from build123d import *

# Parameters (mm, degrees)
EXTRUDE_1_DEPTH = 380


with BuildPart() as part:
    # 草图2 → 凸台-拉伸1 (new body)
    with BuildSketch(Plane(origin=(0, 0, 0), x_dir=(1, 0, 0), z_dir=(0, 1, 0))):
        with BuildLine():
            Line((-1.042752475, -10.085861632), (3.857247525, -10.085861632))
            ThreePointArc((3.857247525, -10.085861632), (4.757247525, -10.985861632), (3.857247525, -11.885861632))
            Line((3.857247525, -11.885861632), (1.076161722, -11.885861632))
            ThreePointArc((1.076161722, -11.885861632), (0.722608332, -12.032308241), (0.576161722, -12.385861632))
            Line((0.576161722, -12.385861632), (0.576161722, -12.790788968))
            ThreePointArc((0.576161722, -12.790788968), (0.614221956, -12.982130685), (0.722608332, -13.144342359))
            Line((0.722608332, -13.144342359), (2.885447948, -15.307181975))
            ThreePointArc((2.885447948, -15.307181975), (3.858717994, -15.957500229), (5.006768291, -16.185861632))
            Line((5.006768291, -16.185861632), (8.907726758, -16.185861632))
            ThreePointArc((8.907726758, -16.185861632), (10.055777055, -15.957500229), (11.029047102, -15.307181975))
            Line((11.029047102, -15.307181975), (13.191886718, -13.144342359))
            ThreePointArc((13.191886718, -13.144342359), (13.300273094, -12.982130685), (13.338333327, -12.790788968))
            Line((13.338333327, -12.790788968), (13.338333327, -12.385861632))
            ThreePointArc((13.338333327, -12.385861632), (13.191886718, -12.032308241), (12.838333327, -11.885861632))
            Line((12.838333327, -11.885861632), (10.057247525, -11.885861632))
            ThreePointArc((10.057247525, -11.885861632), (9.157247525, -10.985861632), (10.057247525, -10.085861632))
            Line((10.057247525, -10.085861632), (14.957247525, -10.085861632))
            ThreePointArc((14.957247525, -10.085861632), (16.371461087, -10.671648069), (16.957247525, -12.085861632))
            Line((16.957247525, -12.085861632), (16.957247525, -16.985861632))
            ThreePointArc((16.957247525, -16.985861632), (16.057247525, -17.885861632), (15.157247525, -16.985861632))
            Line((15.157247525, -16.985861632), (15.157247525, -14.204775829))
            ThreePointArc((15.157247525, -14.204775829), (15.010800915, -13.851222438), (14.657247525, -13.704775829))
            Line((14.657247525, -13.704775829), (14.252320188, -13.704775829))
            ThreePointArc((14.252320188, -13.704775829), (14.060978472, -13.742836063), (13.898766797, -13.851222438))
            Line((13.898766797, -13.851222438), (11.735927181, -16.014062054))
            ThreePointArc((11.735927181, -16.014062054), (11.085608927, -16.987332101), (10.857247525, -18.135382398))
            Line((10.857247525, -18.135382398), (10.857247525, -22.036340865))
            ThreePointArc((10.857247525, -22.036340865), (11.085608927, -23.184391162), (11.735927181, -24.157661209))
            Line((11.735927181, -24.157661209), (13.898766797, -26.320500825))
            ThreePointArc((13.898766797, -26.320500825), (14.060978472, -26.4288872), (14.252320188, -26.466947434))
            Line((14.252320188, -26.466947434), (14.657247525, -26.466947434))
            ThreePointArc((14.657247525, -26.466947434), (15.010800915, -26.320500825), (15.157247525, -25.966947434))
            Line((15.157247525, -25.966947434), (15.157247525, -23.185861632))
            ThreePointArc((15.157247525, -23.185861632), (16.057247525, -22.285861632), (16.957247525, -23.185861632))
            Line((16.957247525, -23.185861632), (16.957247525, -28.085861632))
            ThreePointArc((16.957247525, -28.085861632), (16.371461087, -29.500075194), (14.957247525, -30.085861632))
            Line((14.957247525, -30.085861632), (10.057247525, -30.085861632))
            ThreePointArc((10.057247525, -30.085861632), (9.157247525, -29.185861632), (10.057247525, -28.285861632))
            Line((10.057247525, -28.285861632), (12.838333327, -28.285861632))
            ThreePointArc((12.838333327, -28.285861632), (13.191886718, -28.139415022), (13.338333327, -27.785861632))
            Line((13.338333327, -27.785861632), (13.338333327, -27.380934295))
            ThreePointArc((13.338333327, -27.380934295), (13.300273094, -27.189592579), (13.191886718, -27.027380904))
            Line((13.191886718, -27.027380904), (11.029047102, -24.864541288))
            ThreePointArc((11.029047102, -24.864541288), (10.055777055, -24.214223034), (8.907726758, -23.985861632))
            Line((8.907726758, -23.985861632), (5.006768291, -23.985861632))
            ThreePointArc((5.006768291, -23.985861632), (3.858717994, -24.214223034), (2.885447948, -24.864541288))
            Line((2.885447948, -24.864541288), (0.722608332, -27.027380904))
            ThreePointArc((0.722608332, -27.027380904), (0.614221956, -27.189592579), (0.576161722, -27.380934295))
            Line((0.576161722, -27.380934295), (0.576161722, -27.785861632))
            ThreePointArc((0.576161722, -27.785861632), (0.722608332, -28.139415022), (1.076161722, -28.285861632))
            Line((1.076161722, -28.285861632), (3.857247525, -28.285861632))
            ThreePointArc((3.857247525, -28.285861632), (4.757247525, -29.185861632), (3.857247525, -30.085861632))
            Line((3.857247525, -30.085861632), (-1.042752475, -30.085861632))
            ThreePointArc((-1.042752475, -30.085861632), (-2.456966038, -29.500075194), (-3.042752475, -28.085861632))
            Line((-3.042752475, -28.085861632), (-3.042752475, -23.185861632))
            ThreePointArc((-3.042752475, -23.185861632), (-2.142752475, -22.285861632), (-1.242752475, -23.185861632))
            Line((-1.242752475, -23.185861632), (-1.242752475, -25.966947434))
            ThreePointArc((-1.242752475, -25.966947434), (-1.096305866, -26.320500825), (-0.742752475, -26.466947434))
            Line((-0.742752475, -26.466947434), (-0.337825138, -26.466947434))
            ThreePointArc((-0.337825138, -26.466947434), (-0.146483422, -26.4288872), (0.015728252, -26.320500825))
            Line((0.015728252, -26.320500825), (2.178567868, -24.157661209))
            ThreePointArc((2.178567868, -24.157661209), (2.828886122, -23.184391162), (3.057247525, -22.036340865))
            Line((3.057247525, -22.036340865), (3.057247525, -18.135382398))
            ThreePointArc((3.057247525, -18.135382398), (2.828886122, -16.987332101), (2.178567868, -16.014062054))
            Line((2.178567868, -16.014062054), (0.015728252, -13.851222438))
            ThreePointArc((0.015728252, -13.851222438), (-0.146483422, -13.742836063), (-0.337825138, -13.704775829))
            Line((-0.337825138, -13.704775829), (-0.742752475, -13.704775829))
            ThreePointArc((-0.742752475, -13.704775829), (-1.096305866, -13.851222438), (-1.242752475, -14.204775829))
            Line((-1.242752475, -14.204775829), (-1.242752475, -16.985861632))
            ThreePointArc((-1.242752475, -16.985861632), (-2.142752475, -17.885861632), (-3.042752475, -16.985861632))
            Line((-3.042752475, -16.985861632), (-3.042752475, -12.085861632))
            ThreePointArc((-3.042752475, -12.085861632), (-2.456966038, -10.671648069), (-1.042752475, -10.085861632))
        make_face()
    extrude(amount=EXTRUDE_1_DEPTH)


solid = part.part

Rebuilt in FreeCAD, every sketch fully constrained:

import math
import FreeCAD as App
import Part
import Sketcher
from FreeCAD import Vector
Q = App.Units.Quantity

doc = App.newDocument("Part")
body = doc.addObject("PartDesign::Body", "Body")

# Sketch on XZ plane
sketch1 = doc.addObject("Sketcher::SketchObject", "Sketch")
body.addObject(sketch1)
sketch1.AttachmentSupport = (doc.XZ_Plane, [""])
sketch1.MapMode = "FlatFace"
sketch1.addGeometry([
    Part.LineSegment(Vector(3.86, 10.09, 0), Vector(-1.04, 10.09, 0)),  # 0
    Part.ArcOfCircle(Part.Circle(Vector(-1.04, 12.09, 0), Vector(0, 0, 1), 2), math.radians(180), math.radians(270)),  # 1
    Part.LineSegment(Vector(-3.04, 12.09, 0), Vector(-3.04, 16.99, 0)),  # 2
    Part.ArcOfCircle(Part.Circle(Vector(-2.14, 16.99, 0), Vector(0, 0, 1), 0.9), math.radians(0), math.radians(180)),  # 3
    Part.LineSegment(Vector(-1.24, 16.99, 0), Vector(-1.24, 14.2, 0)),  # 4
    Part.ArcOfCircle(Part.Circle(Vector(-0.74, 14.2, 0), Vector(0, 0, 1), 0.5), math.radians(180), math.radians(270)),  # 5
    Part.LineSegment(Vector(-0.74, 13.7, 0), Vector(-0.34, 13.7, 0)),  # 6
    Part.ArcOfCircle(Part.Circle(Vector(-0.34, 14.2, 0), Vector(0, 0, 1), 0.5), math.radians(-90), math.radians(-45)),  # 7
    Part.LineSegment(Vector(0.02, 13.85, 0), Vector(2.18, 16.01, 0)),  # 8
    Part.ArcOfCircle(Part.Circle(Vector(0.06, 18.14, 0), Vector(0, 0, 1), 3), math.radians(-45), math.radians(0)),  # 9
    Part.LineSegment(Vector(3.06, 18.14, 0), Vector(3.06, 22.04, 0)),  # 10
    Part.ArcOfCircle(Part.Circle(Vector(0.06, 22.04, 0), Vector(0, 0, 1), 3), math.radians(0), math.radians(45)),  # 11
    Part.LineSegment(Vector(2.18, 24.16, 0), Vector(0.02, 26.32, 0)),  # 12
    Part.ArcOfCircle(Part.Circle(Vector(-0.34, 25.97, 0), Vector(0, 0, 1), 0.5), math.radians(45), math.radians(90)),  # 13
    Part.LineSegment(Vector(-0.34, 26.47, 0), Vector(-0.74, 26.47, 0)),  # 14
    Part.ArcOfCircle(Part.Circle(Vector(-0.74, 25.97, 0), Vector(0, 0, 1), 0.5), math.radians(90), math.radians(180)),  # 15
    Part.LineSegment(Vector(-1.24, 25.97, 0), Vector(-1.24, 23.19, 0)),  # 16
    Part.ArcOfCircle(Part.Circle(Vector(-2.14, 23.19, 0), Vector(0, 0, 1), 0.9), math.radians(180), math.radians(360)),  # 17
    Part.LineSegment(Vector(-3.04, 23.19, 0), Vector(-3.04, 28.09, 0)),  # 18
    Part.ArcOfCircle(Part.Circle(Vector(-1.04, 28.09, 0), Vector(0, 0, 1), 2), math.radians(90), math.radians(180)),  # 19
    Part.LineSegment(Vector(-1.04, 30.09, 0), Vector(3.86, 30.09, 0)),  # 20
    Part.ArcOfCircle(Part.Circle(Vector(3.86, 29.19, 0), Vector(0, 0, 1), 0.9), math.radians(-90), math.radians(90)),  # 21
    Part.LineSegment(Vector(3.86, 28.29, 0), Vector(1.08, 28.29, 0)),  # 22
    Part.ArcOfCircle(Part.Circle(Vector(1.08, 27.79, 0), Vector(0, 0, 1), 0.5), math.radians(90), math.radians(180)),  # 23
    Part.LineSegment(Vector(0.58, 27.79, 0), Vector(0.58, 27.38, 0)),  # 24
    Part.ArcOfCircle(Part.Circle(Vector(1.08, 27.38, 0), Vector(0, 0, 1), 0.5), math.radians(-180), math.radians(-135)),  # 25
    Part.LineSegment(Vector(0.72, 27.03, 0), Vector(2.89, 24.86, 0)),  # 26
    Part.ArcOfCircle(Part.Circle(Vector(5.01, 26.99, 0), Vector(0, 0, 1), 3), math.radians(-135), math.radians(-90)),  # 27
    Part.LineSegment(Vector(5.01, 23.99, 0), Vector(8.91, 23.99, 0)),  # 28
    Part.ArcOfCircle(Part.Circle(Vector(8.91, 26.99, 0), Vector(0, 0, 1), 3), math.radians(-90), math.radians(-45)),  # 29
    Part.LineSegment(Vector(11.03, 24.86, 0), Vector(13.19, 27.03, 0)),  # 30
    Part.ArcOfCircle(Part.Circle(Vector(12.84, 27.38, 0), Vector(0, 0, 1), 0.5), math.radians(-45), math.radians(0)),  # 31
    Part.LineSegment(Vector(13.34, 27.38, 0), Vector(13.34, 27.79, 0)),  # 32
    Part.ArcOfCircle(Part.Circle(Vector(12.84, 27.79, 0), Vector(0, 0, 1), 0.5), math.radians(0), math.radians(90)),  # 33
    Part.LineSegment(Vector(12.84, 28.29, 0), Vector(10.06, 28.29, 0)),  # 34
    Part.ArcOfCircle(Part.Circle(Vector(10.06, 29.19, 0), Vector(0, 0, 1), 0.9), math.radians(90), math.radians(270)),  # 35
    Part.LineSegment(Vector(10.06, 30.09, 0), Vector(14.96, 30.09, 0)),  # 36
    Part.ArcOfCircle(Part.Circle(Vector(14.96, 28.09, 0), Vector(0, 0, 1), 2), math.radians(0), math.radians(90)),  # 37
    Part.LineSegment(Vector(16.96, 28.09, 0), Vector(16.96, 23.19, 0)),  # 38
    Part.ArcOfCircle(Part.Circle(Vector(16.06, 23.19, 0), Vector(0, 0, 1), 0.9), math.radians(180), math.radians(360)),  # 39
    Part.LineSegment(Vector(15.16, 23.19, 0), Vector(15.16, 25.97, 0)),  # 40
    Part.ArcOfCircle(Part.Circle(Vector(14.66, 25.97, 0), Vector(0, 0, 1), 0.5), math.radians(0), math.radians(90)),  # 41
    Part.LineSegment(Vector(14.66, 26.47, 0), Vector(14.25, 26.47, 0)),  # 42
    Part.ArcOfCircle(Part.Circle(Vector(14.25, 25.97, 0), Vector(0, 0, 1), 0.5), math.radians(90), math.radians(135)),  # 43
    Part.LineSegment(Vector(13.9, 26.32, 0), Vector(11.74, 24.16, 0)),  # 44
    Part.ArcOfCircle(Part.Circle(Vector(13.86, 22.04, 0), Vector(0, 0, 1), 3), math.radians(135), math.radians(180)),  # 45
    Part.LineSegment(Vector(10.86, 22.04, 0), Vector(10.86, 18.14, 0)),  # 46
    Part.ArcOfCircle(Part.Circle(Vector(13.86, 18.14, 0), Vector(0, 0, 1), 3), math.radians(180), math.radians(225)),  # 47
    Part.LineSegment(Vector(11.74, 16.01, 0), Vector(13.9, 13.85, 0)),  # 48
    Part.ArcOfCircle(Part.Circle(Vector(14.25, 14.2, 0), Vector(0, 0, 1), 0.5), math.radians(-135), math.radians(-90)),  # 49
    Part.LineSegment(Vector(14.25, 13.7, 0), Vector(14.66, 13.7, 0)),  # 50
    Part.ArcOfCircle(Part.Circle(Vector(14.66, 14.2, 0), Vector(0, 0, 1), 0.5), math.radians(-90), math.radians(0)),  # 51
    Part.LineSegment(Vector(15.16, 14.2, 0), Vector(15.16, 16.99, 0)),  # 52
    Part.ArcOfCircle(Part.Circle(Vector(16.06, 16.99, 0), Vector(0, 0, 1), 0.9), math.radians(0), math.radians(180)),  # 53
    Part.LineSegment(Vector(16.96, 16.99, 0), Vector(16.96, 12.09, 0)),  # 54
    Part.ArcOfCircle(Part.Circle(Vector(14.96, 12.09, 0), Vector(0, 0, 1), 2), math.radians(-90), math.radians(0)),  # 55
    Part.LineSegment(Vector(14.96, 10.09, 0), Vector(10.06, 10.09, 0)),  # 56
    Part.ArcOfCircle(Part.Circle(Vector(10.06, 10.99, 0), Vector(0, 0, 1), 0.9), math.radians(90), math.radians(270)),  # 57
    Part.LineSegment(Vector(10.06, 11.89, 0), Vector(12.84, 11.89, 0)),  # 58
    Part.ArcOfCircle(Part.Circle(Vector(12.84, 12.39, 0), Vector(0, 0, 1), 0.5), math.radians(-90), math.radians(0)),  # 59
    Part.LineSegment(Vector(13.34, 12.39, 0), Vector(13.34, 12.79, 0)),  # 60
    Part.ArcOfCircle(Part.Circle(Vector(12.84, 12.79, 0), Vector(0, 0, 1), 0.5), math.radians(0), math.radians(45)),  # 61
    Part.LineSegment(Vector(13.19, 13.14, 0), Vector(11.03, 15.31, 0)),  # 62
    Part.ArcOfCircle(Part.Circle(Vector(8.91, 13.19, 0), Vector(0, 0, 1), 3), math.radians(45), math.radians(90)),  # 63
    Part.LineSegment(Vector(8.91, 16.19, 0), Vector(5.01, 16.19, 0)),  # 64
    Part.ArcOfCircle(Part.Circle(Vector(5.01, 13.19, 0), Vector(0, 0, 1), 3), math.radians(90), math.radians(135)),  # 65
    Part.LineSegment(Vector(2.89, 15.31, 0), Vector(0.72, 13.14, 0)),  # 66
    Part.ArcOfCircle(Part.Circle(Vector(1.08, 12.79, 0), Vector(0, 0, 1), 0.5), math.radians(135), math.radians(180)),  # 67
    Part.LineSegment(Vector(0.58, 12.79, 0), Vector(0.58, 12.39, 0)),  # 68
    Part.ArcOfCircle(Part.Circle(Vector(1.08, 12.39, 0), Vector(0, 0, 1), 0.5), math.radians(180), math.radians(270)),  # 69
    Part.LineSegment(Vector(1.08, 11.89, 0), Vector(3.86, 11.89, 0)),  # 70
    Part.ArcOfCircle(Part.Circle(Vector(3.86, 10.99, 0), Vector(0, 0, 1), 0.9), math.radians(-90), math.radians(90)),  # 71
], False)
sketch1.addConstraint([
    Sketcher.Constraint("Tangent", 0, 2, 1, 2),
    Sketcher.Constraint("Tangent", 1, 1, 2, 1),
    Sketcher.Constraint("Tangent", 2, 2, 3, 2),
    Sketcher.Constraint("Tangent", 3, 1, 4, 1),
    Sketcher.Constraint("Tangent", 4, 2, 5, 1),
    Sketcher.Constraint("Tangent", 5, 2, 6, 1),
    Sketcher.Constraint("Tangent", 6, 2, 7, 1),
    Sketcher.Constraint("Tangent", 7, 2, 8, 1),
    Sketcher.Constraint("Tangent", 8, 2, 9, 1),
    Sketcher.Constraint("Tangent", 9, 2, 10, 1),
    Sketcher.Constraint("Tangent", 10, 2, 11, 1),
    Sketcher.Constraint("Tangent", 11, 2, 12, 1),
    Sketcher.Constraint("Tangent", 12, 2, 13, 1),
    Sketcher.Constraint("Tangent", 13, 2, 14, 1),
    Sketcher.Constraint("Tangent", 14, 2, 15, 1),
    Sketcher.Constraint("Tangent", 15, 2, 16, 1),
    Sketcher.Constraint("Tangent", 16, 2, 17, 2),
    Sketcher.Constraint("Tangent", 17, 1, 18, 1),
    Sketcher.Constraint("Tangent", 18, 2, 19, 2),
    Sketcher.Constraint("Tangent", 19, 1, 20, 1),
    Sketcher.Constraint("Tangent", 20, 2, 21, 2),
    Sketcher.Constraint("Tangent", 21, 1, 22, 1),
    Sketcher.Constraint("Tangent", 22, 2, 23, 1),
    Sketcher.Constraint("Tangent", 23, 2, 24, 1),
    Sketcher.Constraint("Tangent", 24, 2, 25, 1),
    Sketcher.Constraint("Tangent", 25, 2, 26, 1),
    Sketcher.Constraint("Tangent", 26, 2, 27, 1),
    Sketcher.Constraint("Tangent", 27, 2, 28, 1),
    Sketcher.Constraint("Tangent", 28, 2, 29, 1),
    Sketcher.Constraint("Tangent", 29, 2, 30, 1),
    Sketcher.Constraint("Tangent", 30, 2, 31, 1),
    Sketcher.Constraint("Tangent", 31, 2, 32, 1),
    Sketcher.Constraint("Tangent", 32, 2, 33, 1),
    Sketcher.Constraint("Tangent", 33, 2, 34, 1),
    Sketcher.Constraint("Tangent", 34, 2, 35, 2),
    Sketcher.Constraint("Tangent", 35, 1, 36, 1),
    Sketcher.Constraint("Tangent", 36, 2, 37, 2),
    Sketcher.Constraint("Tangent", 37, 1, 38, 1),
    Sketcher.Constraint("Tangent", 38, 2, 39, 2),
    Sketcher.Constraint("Tangent", 39, 1, 40, 1),
    Sketcher.Constraint("Tangent", 40, 2, 41, 1),
    Sketcher.Constraint("Tangent", 41, 2, 42, 1),
    Sketcher.Constraint("Tangent", 42, 2, 43, 1),
    Sketcher.Constraint("Tangent", 43, 2, 44, 1),
    Sketcher.Constraint("Tangent", 44, 2, 45, 1),
    Sketcher.Constraint("Tangent", 45, 2, 46, 1),
    Sketcher.Constraint("Tangent", 46, 2, 47, 1),
    Sketcher.Constraint("Tangent", 47, 2, 48, 1),
    Sketcher.Constraint("Tangent", 48, 2, 49, 1),
    Sketcher.Constraint("Tangent", 49, 2, 50, 1),
    Sketcher.Constraint("Tangent", 50, 2, 51, 1),
    Sketcher.Constraint("Tangent", 51, 2, 52, 1),
    Sketcher.Constraint("Tangent", 52, 2, 53, 2),
    Sketcher.Constraint("Tangent", 53, 1, 54, 1),
    Sketcher.Constraint("Tangent", 54, 2, 55, 2),
    Sketcher.Constraint("Tangent", 55, 1, 56, 1),
    Sketcher.Constraint("Tangent", 56, 2, 57, 2),
    Sketcher.Constraint("Tangent", 57, 1, 58, 1),
    Sketcher.Constraint("Tangent", 58, 2, 59, 1),
    Sketcher.Constraint("Tangent", 59, 2, 60, 1),
    Sketcher.Constraint("Tangent", 60, 2, 61, 1),
    Sketcher.Constraint("Tangent", 61, 2, 62, 1),
    Sketcher.Constraint("Tangent", 62, 2, 63, 1),
    Sketcher.Constraint("Tangent", 63, 2, 64, 1),
    Sketcher.Constraint("Tangent", 64, 2, 65, 1),
    Sketcher.Constraint("Tangent", 65, 2, 66, 1),
    Sketcher.Constraint("Tangent", 66, 2, 67, 1),
    Sketcher.Constraint("Tangent", 67, 2, 68, 1),
    Sketcher.Constraint("Tangent", 68, 2, 69, 1),
    Sketcher.Constraint("Tangent", 69, 2, 70, 1),
    Sketcher.Constraint("Tangent", 70, 2, 71, 2),
    Sketcher.Constraint("Tangent", 71, 1, 0, 1),
    Sketcher.Constraint("Horizontal", 0),
    Sketcher.Constraint("Vertical", 2),
    Sketcher.Constraint("Vertical", 4),
    Sketcher.Constraint("Horizontal", 6),
    Sketcher.Constraint("Vertical", 10),
    Sketcher.Constraint("Horizontal", 14),
    Sketcher.Constraint("Vertical", 16),
    Sketcher.Constraint("Vertical", 18),
    Sketcher.Constraint("Horizontal", 20),
    Sketcher.Constraint("Horizontal", 22),
    Sketcher.Constraint("Vertical", 24),
    Sketcher.Constraint("Horizontal", 28),
    Sketcher.Constraint("Vertical", 32),
    Sketcher.Constraint("Horizontal", 34),
    Sketcher.Constraint("Horizontal", 36),
    Sketcher.Constraint("Vertical", 38),
    Sketcher.Constraint("Vertical", 40),
    Sketcher.Constraint("Horizontal", 42),
    Sketcher.Constraint("Vertical", 46),
    Sketcher.Constraint("Horizontal", 50),
    Sketcher.Constraint("Vertical", 52),
    Sketcher.Constraint("Vertical", 54),
    Sketcher.Constraint("Horizontal", 56),
    Sketcher.Constraint("Horizontal", 58),
    Sketcher.Constraint("Vertical", 60),
    Sketcher.Constraint("Horizontal", 64),
    Sketcher.Constraint("Vertical", 68),
    Sketcher.Constraint("Horizontal", 70),
    Sketcher.Constraint("Equal", 5, 7),
    Sketcher.Constraint("Equal", 9, 11),
    Sketcher.Constraint("Equal", 7, 13),
    Sketcher.Constraint("Equal", 13, 15),
    Sketcher.Constraint("Equal", 3, 17),
    Sketcher.Constraint("Equal", 1, 19),
    Sketcher.Constraint("Equal", 17, 21),
    Sketcher.Constraint("Equal", 15, 23),
    Sketcher.Constraint("Equal", 23, 25),
    Sketcher.Constraint("Equal", 11, 27),
    Sketcher.Constraint("Equal", 27, 29),
    Sketcher.Constraint("Equal", 25, 31),
    Sketcher.Constraint("Equal", 31, 33),
    Sketcher.Constraint("Equal", 21, 35),
    Sketcher.Constraint("Equal", 19, 37),
    Sketcher.Constraint("Equal", 35, 39),
    Sketcher.Constraint("Equal", 33, 41),
    Sketcher.Constraint("Equal", 41, 43),
    Sketcher.Constraint("Equal", 29, 45),
    Sketcher.Constraint("Equal", 45, 47),
    Sketcher.Constraint("Equal", 43, 49),
    Sketcher.Constraint("Equal", 49, 51),
    Sketcher.Constraint("Equal", 39, 53),
    Sketcher.Constraint("Equal", 37, 55),
    Sketcher.Constraint("Equal", 53, 57),
    Sketcher.Constraint("Equal", 51, 59),
    Sketcher.Constraint("Equal", 59, 61),
    Sketcher.Constraint("Equal", 47, 63),
    Sketcher.Constraint("Equal", 63, 65),
    Sketcher.Constraint("Equal", 61, 67),
    Sketcher.Constraint("Equal", 67, 69),
    Sketcher.Constraint("Equal", 57, 71),
    Sketcher.Constraint("Perpendicular", 8, 12),
    Sketcher.Constraint("Parallel", 12, 26),
    Sketcher.Constraint("Perpendicular", 26, 30),
    Sketcher.Constraint("Parallel", 30, 44),
    Sketcher.Constraint("Perpendicular", 44, 48),
    Sketcher.Constraint("Parallel", 48, 62),
    Sketcher.Constraint("Perpendicular", 62, 66),
    Sketcher.Constraint("Horizontal", 25, 3, 31, 3),
    Sketcher.Constraint("Horizontal", 23, 3, 33, 3),
    Sketcher.Constraint("Horizontal", 17, 3, 39, 3),
    Sketcher.Constraint("Horizontal", 15, 3, 41, 3),
    Sketcher.Constraint("Horizontal", 11, 3, 45, 3),
    Sketcher.Constraint("Horizontal", 9, 3, 47, 3),
    Sketcher.Constraint("Horizontal", 7, 3, 49, 3),
    Sketcher.Constraint("Horizontal", 3, 3, 53, 3),
    Sketcher.Constraint("Horizontal", 1, 3, 55, 3),
    Sketcher.Constraint("Horizontal", 61, 3, 67, 3),
    Sketcher.Constraint("Horizontal", 26, 2, 29, 2),
    Sketcher.Constraint("Vertical", 7, 3, 13, 3),
    Sketcher.Constraint("Vertical", 5, 3, 15, 3),
    Sketcher.Constraint("Vertical", 41, 3, 51, 3),
    Sketcher.Constraint("Vertical", 35, 3, 57, 3),
    Sketcher.Constraint("Vertical", 33, 3, 59, 3),
    Sketcher.Constraint("Vertical", 29, 3, 63, 3),
    Sketcher.Constraint("Vertical", 27, 3, 65, 3),
    Sketcher.Constraint("Vertical", 21, 3, 71, 3),
    Sketcher.Constraint("Equal", 22, 34),
    Sketcher.Constraint("Equal", 20, 36),
    Sketcher.Constraint("Equal", 14, 42),
    Sketcher.Constraint("Equal", 56, 2),
    Sketcher.Constraint("Equal", 70, 4),
    Sketcher.Constraint("Equal", 64, 10),
    Sketcher.Constraint("Equal", 4, 16),
    Sketcher.Constraint("Equal", 2, 18),
    Sketcher.Constraint("Equal", 50, 24),
    Sketcher.Constraint("Equal", 32, 60),
    Sketcher.Constraint("Equal", 12, 26),
    Sketcher.Constraint("Radius", 1, Q("2 mm")),
    Sketcher.Constraint("Radius", 9, Q("3 mm")),
    Sketcher.Constraint("Radius", 3, Q("0.9 mm")),
    Sketcher.Constraint("Radius", 5, Q("0.5 mm")),
    Sketcher.Constraint("DistanceX", 0, 2, 0, 1, Q("4.9 mm")),
    Sketcher.Constraint("DistanceX", 28, 1, 28, 2, Q("3.900958 mm")),
    Sketcher.Constraint("DistanceY", -1, 1, 12, 2, Q("26.320501 mm")),
    Sketcher.Constraint("DistanceX", 6, 1, 6, 2, Q("0.404927 mm")),
    Sketcher.Constraint("DistanceX", 22, 2, 22, 1, Q("2.781086 mm")),
    Sketcher.Constraint("DistanceY", -1, 1, 1, 3, Q("12.085862 mm")),
    Sketcher.Constraint("DistanceX", -1, 1, 23, 3, Q("1.076162 mm")),
])
pad1 = doc.addObject("PartDesign::Pad", "Pad")
body.addObject(pad1)
pad1.Profile = sketch1
pad1.Length = 380
pad1.Reversed = True

doc.recompute()
